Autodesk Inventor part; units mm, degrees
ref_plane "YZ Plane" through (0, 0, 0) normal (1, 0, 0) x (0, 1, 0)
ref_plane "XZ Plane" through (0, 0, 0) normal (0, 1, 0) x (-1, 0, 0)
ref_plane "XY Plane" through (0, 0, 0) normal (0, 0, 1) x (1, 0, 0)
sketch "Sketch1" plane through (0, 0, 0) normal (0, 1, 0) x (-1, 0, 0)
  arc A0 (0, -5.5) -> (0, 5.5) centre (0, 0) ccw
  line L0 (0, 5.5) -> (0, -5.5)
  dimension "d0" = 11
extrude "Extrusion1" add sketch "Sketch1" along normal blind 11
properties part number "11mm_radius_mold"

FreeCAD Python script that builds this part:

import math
import FreeCAD as App
import Part
import Sketcher
Q = App.Units.Quantity

doc = App.newDocument("Part")
params = doc.addObject("Spreadsheet::Sheet", "Params")
for row, (alias, value) in enumerate([
    ("sketch1_radius", "5.5 mm"),
    ("pad1_length", "11 mm"),
], start=1):
    params.set(f"A{row}", alias)
    params.set(f"B{row}", "=" + value)
    params.setAlias(f"B{row}", alias)

body = doc.addObject("PartDesign::Body", "Body")

# Sketch on XZ plane
sketch1 = doc.addObject("Sketcher::SketchObject", "Sketch")
body.addObject(sketch1)
sketch1.AttachmentSupport = (doc.XZ_Plane, [""])
sketch1.MapMode = "FlatFace"
sketch1.addGeometry(Part.LineSegment(App.Vector(0, 6, 0), App.Vector(0, -6, 0)), False)
sketch1.addGeometry(Part.ArcOfCircle(Part.Circle(App.Vector(0, 0, 0), App.Vector(0, 0, 1), 6), math.radians(90), math.radians(270)), False)
sketch1.addConstraint(Sketcher.Constraint("Coincident", 0, 1, 1, 1))
sketch1.addConstraint(Sketcher.Constraint("Coincident", 1, 2, 0, 2))
sketch1.addConstraint(Sketcher.Constraint("Vertical", 0))
sketch1.addConstraint(Sketcher.Constraint("Coincident", 1, 3, -1, 1))
sketch1.addConstraint(Sketcher.Constraint("PointOnObject", 0, 1, -2))
sketch1.addConstraint(Sketcher.Constraint("Radius", 1, Q("5.5 mm")))
sketch1.setExpression("Constraints[5]", "Params.sketch1_radius")
pad1 = doc.addObject("PartDesign::Pad", "Pad")
body.addObject(pad1)
pad1.Profile = sketch1
pad1.setExpression("Length", "Params.pad1_length")
pad1.Reversed = True

doc.recompute()
